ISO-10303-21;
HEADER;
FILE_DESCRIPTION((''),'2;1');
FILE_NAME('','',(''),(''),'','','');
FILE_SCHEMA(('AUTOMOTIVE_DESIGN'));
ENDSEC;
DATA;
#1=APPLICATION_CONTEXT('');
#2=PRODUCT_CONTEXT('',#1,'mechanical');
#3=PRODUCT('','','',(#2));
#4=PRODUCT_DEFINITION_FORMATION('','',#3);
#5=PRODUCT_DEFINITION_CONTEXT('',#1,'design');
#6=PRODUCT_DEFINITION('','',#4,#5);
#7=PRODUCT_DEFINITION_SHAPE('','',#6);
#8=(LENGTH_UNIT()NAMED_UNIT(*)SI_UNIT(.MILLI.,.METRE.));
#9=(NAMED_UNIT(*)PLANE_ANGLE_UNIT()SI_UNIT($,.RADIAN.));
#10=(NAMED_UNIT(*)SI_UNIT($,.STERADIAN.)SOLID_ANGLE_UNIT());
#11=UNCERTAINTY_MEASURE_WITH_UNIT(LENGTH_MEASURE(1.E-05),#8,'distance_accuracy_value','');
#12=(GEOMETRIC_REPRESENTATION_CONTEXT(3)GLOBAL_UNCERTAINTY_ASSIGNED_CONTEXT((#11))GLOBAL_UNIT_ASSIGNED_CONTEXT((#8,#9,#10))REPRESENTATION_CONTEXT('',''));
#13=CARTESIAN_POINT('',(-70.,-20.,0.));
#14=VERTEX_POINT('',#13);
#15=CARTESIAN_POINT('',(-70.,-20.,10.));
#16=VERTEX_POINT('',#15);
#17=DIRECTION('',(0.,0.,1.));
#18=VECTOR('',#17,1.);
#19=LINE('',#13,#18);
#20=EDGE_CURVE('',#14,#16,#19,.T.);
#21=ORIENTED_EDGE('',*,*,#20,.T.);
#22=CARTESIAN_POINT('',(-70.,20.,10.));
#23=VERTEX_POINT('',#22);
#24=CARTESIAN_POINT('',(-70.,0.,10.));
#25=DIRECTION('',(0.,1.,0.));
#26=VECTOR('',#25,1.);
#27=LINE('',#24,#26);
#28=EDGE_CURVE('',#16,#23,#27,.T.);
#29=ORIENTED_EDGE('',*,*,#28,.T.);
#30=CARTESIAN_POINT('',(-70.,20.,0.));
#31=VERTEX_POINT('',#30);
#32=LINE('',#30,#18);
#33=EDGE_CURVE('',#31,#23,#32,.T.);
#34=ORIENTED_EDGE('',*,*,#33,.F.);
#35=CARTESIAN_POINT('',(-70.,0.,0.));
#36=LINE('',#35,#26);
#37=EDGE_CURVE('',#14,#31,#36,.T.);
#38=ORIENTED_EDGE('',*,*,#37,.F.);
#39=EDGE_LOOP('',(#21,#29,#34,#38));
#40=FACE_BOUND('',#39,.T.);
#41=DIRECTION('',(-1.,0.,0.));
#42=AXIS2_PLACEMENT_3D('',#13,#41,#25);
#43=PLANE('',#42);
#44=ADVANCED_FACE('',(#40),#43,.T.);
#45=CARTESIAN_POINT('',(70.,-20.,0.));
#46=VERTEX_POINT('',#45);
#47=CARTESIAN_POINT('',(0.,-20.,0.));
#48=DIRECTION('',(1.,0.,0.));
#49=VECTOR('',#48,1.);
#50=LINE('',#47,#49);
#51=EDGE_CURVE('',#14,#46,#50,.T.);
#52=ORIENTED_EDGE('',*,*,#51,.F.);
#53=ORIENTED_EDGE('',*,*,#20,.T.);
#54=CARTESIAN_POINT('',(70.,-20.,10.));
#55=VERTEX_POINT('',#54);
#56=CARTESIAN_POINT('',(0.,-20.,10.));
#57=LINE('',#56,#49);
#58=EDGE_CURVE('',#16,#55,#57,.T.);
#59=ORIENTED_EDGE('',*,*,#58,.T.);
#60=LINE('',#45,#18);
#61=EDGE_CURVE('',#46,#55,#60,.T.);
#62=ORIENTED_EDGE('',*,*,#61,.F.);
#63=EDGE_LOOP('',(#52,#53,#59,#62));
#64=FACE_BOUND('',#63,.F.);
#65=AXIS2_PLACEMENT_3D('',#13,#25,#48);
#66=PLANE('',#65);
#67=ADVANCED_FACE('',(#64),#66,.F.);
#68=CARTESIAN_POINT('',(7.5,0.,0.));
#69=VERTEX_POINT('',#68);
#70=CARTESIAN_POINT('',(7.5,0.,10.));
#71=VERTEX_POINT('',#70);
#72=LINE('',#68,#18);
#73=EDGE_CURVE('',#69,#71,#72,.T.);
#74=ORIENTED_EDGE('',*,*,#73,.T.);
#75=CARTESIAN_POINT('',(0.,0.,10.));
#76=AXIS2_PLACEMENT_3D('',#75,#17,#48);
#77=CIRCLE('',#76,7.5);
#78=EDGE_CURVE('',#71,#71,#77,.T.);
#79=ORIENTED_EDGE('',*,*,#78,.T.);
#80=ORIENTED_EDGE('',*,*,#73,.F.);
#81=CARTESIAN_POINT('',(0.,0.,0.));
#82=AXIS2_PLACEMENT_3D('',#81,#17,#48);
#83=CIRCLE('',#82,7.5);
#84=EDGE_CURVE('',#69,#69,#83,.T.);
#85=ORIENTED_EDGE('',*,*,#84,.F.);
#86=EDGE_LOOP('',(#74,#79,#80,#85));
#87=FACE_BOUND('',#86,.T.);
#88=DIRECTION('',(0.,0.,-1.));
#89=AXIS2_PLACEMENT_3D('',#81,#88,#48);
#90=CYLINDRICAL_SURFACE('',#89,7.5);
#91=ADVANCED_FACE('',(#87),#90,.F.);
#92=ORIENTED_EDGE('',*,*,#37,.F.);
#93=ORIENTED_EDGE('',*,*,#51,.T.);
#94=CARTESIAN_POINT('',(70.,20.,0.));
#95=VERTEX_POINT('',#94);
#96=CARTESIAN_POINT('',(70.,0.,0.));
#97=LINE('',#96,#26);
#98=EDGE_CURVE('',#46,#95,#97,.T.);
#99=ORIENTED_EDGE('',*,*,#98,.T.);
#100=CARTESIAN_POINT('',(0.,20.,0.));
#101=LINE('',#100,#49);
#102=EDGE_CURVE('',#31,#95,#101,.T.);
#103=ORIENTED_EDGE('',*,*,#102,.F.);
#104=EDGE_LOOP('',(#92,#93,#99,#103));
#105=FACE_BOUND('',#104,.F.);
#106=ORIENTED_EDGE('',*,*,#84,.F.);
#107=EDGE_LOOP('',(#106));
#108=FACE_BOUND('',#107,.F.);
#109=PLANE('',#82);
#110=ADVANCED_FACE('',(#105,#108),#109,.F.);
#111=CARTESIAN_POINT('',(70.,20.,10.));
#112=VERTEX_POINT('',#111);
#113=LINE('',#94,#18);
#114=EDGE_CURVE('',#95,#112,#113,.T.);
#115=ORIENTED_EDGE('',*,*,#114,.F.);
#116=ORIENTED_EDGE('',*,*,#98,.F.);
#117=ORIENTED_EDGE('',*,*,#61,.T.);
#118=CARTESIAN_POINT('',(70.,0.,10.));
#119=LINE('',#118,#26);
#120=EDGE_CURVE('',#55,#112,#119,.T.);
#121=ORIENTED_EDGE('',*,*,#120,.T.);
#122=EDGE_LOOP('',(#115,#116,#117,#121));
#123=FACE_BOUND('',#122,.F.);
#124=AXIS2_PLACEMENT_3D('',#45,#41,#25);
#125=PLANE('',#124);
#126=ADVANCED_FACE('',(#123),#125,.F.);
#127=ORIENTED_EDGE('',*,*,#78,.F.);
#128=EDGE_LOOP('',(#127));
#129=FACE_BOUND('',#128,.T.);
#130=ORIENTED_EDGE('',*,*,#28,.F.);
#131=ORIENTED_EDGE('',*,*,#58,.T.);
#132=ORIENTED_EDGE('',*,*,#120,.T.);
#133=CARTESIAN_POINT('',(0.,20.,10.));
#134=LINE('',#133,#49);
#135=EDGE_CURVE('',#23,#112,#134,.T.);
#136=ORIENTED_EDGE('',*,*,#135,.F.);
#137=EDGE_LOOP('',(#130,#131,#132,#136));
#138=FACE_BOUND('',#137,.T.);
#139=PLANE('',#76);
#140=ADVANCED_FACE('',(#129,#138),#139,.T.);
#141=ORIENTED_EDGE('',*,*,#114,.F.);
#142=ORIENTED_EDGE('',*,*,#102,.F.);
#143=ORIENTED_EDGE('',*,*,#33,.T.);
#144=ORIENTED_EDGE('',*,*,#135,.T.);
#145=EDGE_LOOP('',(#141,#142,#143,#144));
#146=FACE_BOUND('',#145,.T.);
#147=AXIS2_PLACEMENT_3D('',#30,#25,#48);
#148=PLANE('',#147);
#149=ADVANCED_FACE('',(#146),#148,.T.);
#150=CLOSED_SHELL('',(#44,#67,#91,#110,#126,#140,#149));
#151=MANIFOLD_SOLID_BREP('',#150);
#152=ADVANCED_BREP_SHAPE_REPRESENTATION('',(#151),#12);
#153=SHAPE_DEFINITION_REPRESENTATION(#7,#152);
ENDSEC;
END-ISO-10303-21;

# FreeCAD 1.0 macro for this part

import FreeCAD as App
import Part
import Sketcher

doc = App.newDocument("Part")
params = doc.addObject("Spreadsheet::Sheet", "Params")
for row, (alias, value) in enumerate([
    ("sketch1_diameter", "15 mm"),
    ("sketch1_width", "140 mm"),
    ("sketch1_height", "40 mm"),
    ("pad1_length", "10 mm"),
], start=1):
    params.set(f"A{row}", alias)
    params.set(f"B{row}", "=" + value)
    params.setAlias(f"B{row}", alias)

body = doc.addObject("PartDesign::Body", "Body")

# Sketch on XY plane
sketch1 = body.newObject("Sketcher::SketchObject", "Sketch")
sketch1.AttachmentSupport = (doc.getObject("XY_Plane"), [""])
sketch1.MapMode = "FlatFace"
sketch1.addGeometry(Part.LineSegment(App.Vector(-70, 20, 0), App.Vector(-70, -20, 0)), False)
sketch1.addGeometry(Part.LineSegment(App.Vector(-70, -20, 0), App.Vector(70, -20, 0)), False)
sketch1.addGeometry(Part.LineSegment(App.Vector(70, -20, 0), App.Vector(70, 20, 0)), False)
sketch1.addGeometry(Part.LineSegment(App.Vector(70, 20, 0), App.Vector(-70, 20, 0)), False)
sketch1.addGeometry(Part.Circle(App.Vector(0, 0, 0), App.Vector(0, 0, 1), 8), False)
sketch1.addConstraint(Sketcher.Constraint("Coincident", 0, 2, 1, 1))
sketch1.addConstraint(Sketcher.Constraint("Coincident", 1, 2, 2, 1))
sketch1.addConstraint(Sketcher.Constraint("Coincident", 2, 2, 3, 1))
sketch1.addConstraint(Sketcher.Constraint("Coincident", 3, 2, 0, 1))
sketch1.addConstraint(Sketcher.Constraint("Vertical", 0))
sketch1.addConstraint(Sketcher.Constraint("Horizontal", 1))
sketch1.addConstraint(Sketcher.Constraint("Vertical", 2))
sketch1.addConstraint(Sketcher.Constraint("Horizontal", 3))
sketch1.addConstraint(Sketcher.Constraint("Coincident", 4, 3, -1, 1))
sketch1.addConstraint(Sketcher.Constraint("Symmetric", 0, 2, 2, 2, -1, 1))
sketch1.addConstraint(Sketcher.Constraint("Diameter", 4, 15.0))
sketch1.addConstraint(Sketcher.Constraint("DistanceX", 1, 1, 1, 2, 140.0))
sketch1.addConstraint(Sketcher.Constraint("DistanceY", 0, 2, 0, 1, 40.0))
sketch1.setExpression("Constraints[10]", "Params.sketch1_diameter")
sketch1.setExpression("Constraints[11]", "Params.sketch1_width")
sketch1.setExpression("Constraints[12]", "Params.sketch1_height")
pad1 = body.newObject("PartDesign::Pad", "Pad")
pad1.Profile = sketch1
pad1.setExpression("Length", "Params.pad1_length")

doc.recompute()
